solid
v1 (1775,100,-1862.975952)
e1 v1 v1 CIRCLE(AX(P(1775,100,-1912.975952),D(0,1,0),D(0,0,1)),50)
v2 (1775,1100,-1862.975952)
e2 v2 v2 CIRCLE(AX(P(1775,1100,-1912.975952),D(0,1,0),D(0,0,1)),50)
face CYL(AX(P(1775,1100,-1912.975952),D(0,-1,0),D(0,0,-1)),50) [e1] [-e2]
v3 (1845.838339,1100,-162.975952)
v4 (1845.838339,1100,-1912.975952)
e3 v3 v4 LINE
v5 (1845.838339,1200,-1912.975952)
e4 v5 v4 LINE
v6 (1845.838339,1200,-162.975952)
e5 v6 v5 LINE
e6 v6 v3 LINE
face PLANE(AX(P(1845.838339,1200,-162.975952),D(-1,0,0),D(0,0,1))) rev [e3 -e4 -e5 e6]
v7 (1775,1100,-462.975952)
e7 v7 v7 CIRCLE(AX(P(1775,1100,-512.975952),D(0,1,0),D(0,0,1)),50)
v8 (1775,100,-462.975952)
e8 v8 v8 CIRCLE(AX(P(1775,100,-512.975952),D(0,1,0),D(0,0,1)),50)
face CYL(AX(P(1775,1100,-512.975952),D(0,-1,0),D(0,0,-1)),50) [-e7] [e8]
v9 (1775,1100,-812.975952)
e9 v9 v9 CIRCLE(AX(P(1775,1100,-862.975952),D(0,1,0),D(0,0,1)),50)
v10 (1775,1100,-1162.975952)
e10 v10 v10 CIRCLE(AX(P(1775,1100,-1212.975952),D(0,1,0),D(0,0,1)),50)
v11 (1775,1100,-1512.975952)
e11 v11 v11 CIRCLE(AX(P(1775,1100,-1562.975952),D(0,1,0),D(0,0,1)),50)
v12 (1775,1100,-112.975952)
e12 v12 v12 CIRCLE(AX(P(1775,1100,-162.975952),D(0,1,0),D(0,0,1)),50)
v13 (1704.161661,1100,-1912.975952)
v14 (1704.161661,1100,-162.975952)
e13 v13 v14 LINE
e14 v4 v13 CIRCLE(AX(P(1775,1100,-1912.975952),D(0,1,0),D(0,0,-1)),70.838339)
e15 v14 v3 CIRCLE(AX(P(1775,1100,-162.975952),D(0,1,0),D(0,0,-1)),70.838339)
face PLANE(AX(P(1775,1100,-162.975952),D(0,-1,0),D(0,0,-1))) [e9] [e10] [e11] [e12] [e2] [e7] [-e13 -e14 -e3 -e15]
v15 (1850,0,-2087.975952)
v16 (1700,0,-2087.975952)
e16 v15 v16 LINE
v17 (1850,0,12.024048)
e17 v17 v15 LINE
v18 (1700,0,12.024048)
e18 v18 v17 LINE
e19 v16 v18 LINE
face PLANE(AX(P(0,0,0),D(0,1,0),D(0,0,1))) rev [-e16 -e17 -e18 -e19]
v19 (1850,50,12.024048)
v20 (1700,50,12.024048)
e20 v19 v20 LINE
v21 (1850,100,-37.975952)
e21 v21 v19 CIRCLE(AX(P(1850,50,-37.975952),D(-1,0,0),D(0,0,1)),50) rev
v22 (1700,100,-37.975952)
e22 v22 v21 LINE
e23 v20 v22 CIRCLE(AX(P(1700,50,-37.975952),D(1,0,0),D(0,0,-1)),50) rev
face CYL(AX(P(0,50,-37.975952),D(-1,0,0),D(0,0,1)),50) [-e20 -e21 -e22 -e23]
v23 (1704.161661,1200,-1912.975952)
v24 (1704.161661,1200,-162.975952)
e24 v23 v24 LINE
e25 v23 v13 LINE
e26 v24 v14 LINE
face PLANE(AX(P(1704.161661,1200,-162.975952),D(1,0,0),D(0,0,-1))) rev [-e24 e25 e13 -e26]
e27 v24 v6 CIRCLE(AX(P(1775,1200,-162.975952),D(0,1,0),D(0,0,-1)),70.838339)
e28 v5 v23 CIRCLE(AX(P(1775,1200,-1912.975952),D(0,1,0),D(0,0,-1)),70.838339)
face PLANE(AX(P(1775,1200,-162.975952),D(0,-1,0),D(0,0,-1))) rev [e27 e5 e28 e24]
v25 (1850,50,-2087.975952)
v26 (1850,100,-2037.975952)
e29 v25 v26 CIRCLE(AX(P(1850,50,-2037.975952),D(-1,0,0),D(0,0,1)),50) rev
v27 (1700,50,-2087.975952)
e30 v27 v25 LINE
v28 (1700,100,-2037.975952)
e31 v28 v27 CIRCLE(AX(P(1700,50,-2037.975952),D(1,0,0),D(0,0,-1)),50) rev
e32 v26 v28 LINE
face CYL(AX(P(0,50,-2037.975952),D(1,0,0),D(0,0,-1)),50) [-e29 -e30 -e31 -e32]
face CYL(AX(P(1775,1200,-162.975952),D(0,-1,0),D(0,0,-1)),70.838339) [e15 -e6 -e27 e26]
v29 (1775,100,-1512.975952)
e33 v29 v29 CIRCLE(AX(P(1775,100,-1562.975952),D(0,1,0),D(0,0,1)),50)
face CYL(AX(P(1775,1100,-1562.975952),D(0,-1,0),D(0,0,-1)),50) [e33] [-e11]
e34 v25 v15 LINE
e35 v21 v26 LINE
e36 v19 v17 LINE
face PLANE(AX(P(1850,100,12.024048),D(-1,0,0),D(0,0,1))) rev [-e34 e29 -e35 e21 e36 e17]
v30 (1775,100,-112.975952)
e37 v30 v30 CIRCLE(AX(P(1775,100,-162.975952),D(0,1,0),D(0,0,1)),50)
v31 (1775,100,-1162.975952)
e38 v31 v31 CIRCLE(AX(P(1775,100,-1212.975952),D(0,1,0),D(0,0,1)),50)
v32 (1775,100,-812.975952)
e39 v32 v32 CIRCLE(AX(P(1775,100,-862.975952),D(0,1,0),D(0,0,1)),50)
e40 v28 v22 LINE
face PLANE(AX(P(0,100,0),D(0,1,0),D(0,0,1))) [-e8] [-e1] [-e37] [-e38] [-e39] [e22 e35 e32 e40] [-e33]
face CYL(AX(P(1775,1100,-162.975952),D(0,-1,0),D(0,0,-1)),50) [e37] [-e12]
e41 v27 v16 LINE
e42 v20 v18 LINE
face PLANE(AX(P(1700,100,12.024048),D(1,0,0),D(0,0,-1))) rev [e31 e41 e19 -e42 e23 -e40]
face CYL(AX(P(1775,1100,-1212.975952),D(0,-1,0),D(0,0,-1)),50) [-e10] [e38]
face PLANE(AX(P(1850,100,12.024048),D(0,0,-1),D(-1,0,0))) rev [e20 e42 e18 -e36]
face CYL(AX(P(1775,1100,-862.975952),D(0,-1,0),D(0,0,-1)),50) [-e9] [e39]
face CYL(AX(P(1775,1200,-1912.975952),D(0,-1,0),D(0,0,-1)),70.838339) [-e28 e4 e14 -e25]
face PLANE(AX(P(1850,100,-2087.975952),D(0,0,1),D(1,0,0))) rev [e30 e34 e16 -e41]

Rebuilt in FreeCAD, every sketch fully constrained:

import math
import FreeCAD as App
import Part
import Sketcher
from FreeCAD import Vector
Q = App.Units.Quantity


def edges_at(feature, points):
    """Names of the edges that pass closest to the given points."""
    edges = feature.Shape.Edges
    near = lambda p: min(range(len(edges)), key=lambda i: edges[i].distToShape(Part.Vertex(*p))[0])
    return sorted({f"Edge{near(p) + 1}" for p in points})

doc = App.newDocument("Part")
body = doc.addObject("PartDesign::Body", "Body")

# Sketch on XZ plane
sketch1 = doc.addObject("Sketcher::SketchObject", "Sketch")
body.addObject(sketch1)
sketch1.AttachmentSupport = (doc.XZ_Plane, [""])
sketch1.MapMode = "FlatFace"
sketch1.addGeometry(Part.LineSegment(Vector(1700, -2088, 0), Vector(1700, 12, 0)), False)
sketch1.addGeometry(Part.LineSegment(Vector(1700, 12, 0), Vector(1850, 12, 0)), False)
sketch1.addGeometry(Part.LineSegment(Vector(1850, 12, 0), Vector(1850, -2088, 0)), False)
sketch1.addGeometry(Part.LineSegment(Vector(1850, -2088, 0), Vector(1700, -2088, 0)), False)
sketch1.addConstraint(Sketcher.Constraint("Coincident", 0, 2, 1, 1))
sketch1.addConstraint(Sketcher.Constraint("Coincident", 1, 2, 2, 1))
sketch1.addConstraint(Sketcher.Constraint("Coincident", 2, 2, 3, 1))
sketch1.addConstraint(Sketcher.Constraint("Coincident", 3, 2, 0, 1))
sketch1.addConstraint(Sketcher.Constraint("Vertical", 0))
sketch1.addConstraint(Sketcher.Constraint("Horizontal", 1))
sketch1.addConstraint(Sketcher.Constraint("Vertical", 2))
sketch1.addConstraint(Sketcher.Constraint("Horizontal", 3))
sketch1.addConstraint(Sketcher.Constraint("DistanceX", 1, 1, 1, 2, Q("150 mm")))
sketch1.addConstraint(Sketcher.Constraint("DistanceY", 0, 1, 0, 2, Q("2100 mm")))
sketch1.addConstraint(Sketcher.Constraint("DistanceX", -1, 1, 0, 2, Q("1700 mm")))
sketch1.addConstraint(Sketcher.Constraint("DistanceY", -1, 1, 0, 2, Q("12.024048 mm")))
pad1 = doc.addObject("PartDesign::Pad", "Pad")
body.addObject(pad1)
pad1.Profile = sketch1
pad1.Length = 100
pad1.Reversed = True

# Sketch on XZ plane
sketch2 = doc.addObject("Sketcher::SketchObject", "Sketch001")
body.addObject(sketch2)
sketch2.AttachmentSupport = (doc.XZ_Plane, [""])
sketch2.MapMode = "FlatFace"
sketch2.AttachmentOffset = App.Placement(Vector(0, 0, -100), App.Rotation())
sketch2.addGeometry(Part.Circle(Vector(1775, -1913, 0), Vector(0, 0, 1), 50), False)
sketch2.addConstraint(Sketcher.Constraint("Diameter", 0, Q("100 mm")))
sketch2.addConstraint(Sketcher.Constraint("DistanceX", -1, 1, 0, 3, Q("1775 mm")))
sketch2.addConstraint(Sketcher.Constraint("DistanceY", 0, 3, -1, 1, Q("1912.975952 mm")))
pad2 = doc.addObject("PartDesign::Pad", "Pad001")
body.addObject(pad2)
pad2.Profile = sketch2
pad2.Length = 1000
pad2.Reversed = True
doc.recompute()

linearpattern = doc.addObject("PartDesign::LinearPattern", "LinearPattern")
body.addObject(linearpattern)
linearpattern.Originals = [pad2]
linearpattern.Direction = (doc.Z_Axis, [""])
linearpattern.Mode = "offset"
linearpattern.Offset = 350
linearpattern.Occurrences = 6
body.Tip = linearpattern
doc.recompute()

fillet = doc.addObject("PartDesign::Fillet", "Fillet")
body.addObject(fillet)
fillet.Base = (linearpattern, edges_at(linearpattern, [(1775, 100, 12.024)]))
fillet.Radius = 50
doc.recompute()

fillet2 = doc.addObject("PartDesign::Fillet", "Fillet001")
body.addObject(fillet2)
fillet2.Base = (fillet, edges_at(fillet, [(1775, 100, -2087.976)]))
fillet2.Radius = 50
body2 = doc.addObject("PartDesign::Body", "Body001")

# Sketch on XZ plane
sketch3 = doc.addObject("Sketcher::SketchObject", "Sketch002")
body2.addObject(sketch3)
sketch3.AttachmentSupport = (doc.getObject("XZ_Plane001"), [""])
sketch3.MapMode = "FlatFace"
sketch3.addGeometry(Part.LineSegment(Vector(-1850, -2088, 0), Vector(-1850, 12, 0)), False)
sketch3.addGeometry(Part.LineSegment(Vector(-1850, 12, 0), Vector(-1700, 12, 0)), False)
sketch3.addGeometry(Part.LineSegment(Vector(-1700, 12, 0), Vector(-1700, -2088, 0)), False)
sketch3.addGeometry(Part.LineSegment(Vector(-1700, -2088, 0), Vector(-1850, -2088, 0)), False)
sketch3.addConstraint(Sketcher.Constraint("Coincident", 0, 2, 1, 1))
sketch3.addConstraint(Sketcher.Constraint("Coincident", 1, 2, 2, 1))
sketch3.addConstraint(Sketcher.Constraint("Coincident", 2, 2, 3, 1))
sketch3.addConstraint(Sketcher.Constraint("Coincident", 3, 2, 0, 1))
sketch3.addConstraint(Sketcher.Constraint("Vertical", 0))
sketch3.addConstraint(Sketcher.Constraint("Horizontal", 1))
sketch3.addConstraint(Sketcher.Constraint("Vertical", 2))
sketch3.addConstraint(Sketcher.Constraint("Horizontal", 3))
sketch3.addConstraint(Sketcher.Constraint("DistanceX", 1, 1, 1, 2, Q("150 mm")))
sketch3.addConstraint(Sketcher.Constraint("DistanceY", 0, 1, 0, 2, Q("2100 mm")))
sketch3.addConstraint(Sketcher.Constraint("DistanceX", 0, 2, -1, 1, Q("1850 mm")))
sketch3.addConstraint(Sketcher.Constraint("DistanceY", -1, 1, 0, 2, Q("12.024048 mm")))
pad3 = doc.addObject("PartDesign::Pad", "Pad002")
body2.addObject(pad3)
pad3.Profile = sketch3
pad3.Length = 100
pad3.Reversed = True

# Sketch on XZ plane
sketch4 = doc.addObject("Sketcher::SketchObject", "Sketch003")
body2.addObject(sketch4)
sketch4.AttachmentSupport = (doc.getObject("XZ_Plane001"), [""])
sketch4.MapMode = "FlatFace"
sketch4.AttachmentOffset = App.Placement(Vector(0, 0, -100), App.Rotation())
sketch4.addGeometry(Part.Circle(Vector(-1775, -163, 0), Vector(0, 0, 1), 50), False)
sketch4.addConstraint(Sketcher.Constraint("Diameter", 0, Q("100 mm")))
sketch4.addConstraint(Sketcher.Constraint("DistanceX", 0, 3, -1, 1, Q("1775 mm")))
sketch4.addConstraint(Sketcher.Constraint("DistanceY", 0, 3, -1, 1, Q("162.975952 mm")))
pad4 = doc.addObject("PartDesign::Pad", "Pad003")
body2.addObject(pad4)
pad4.Profile = sketch4
pad4.Length = 1000
pad4.Reversed = True
doc.recompute()

linearpattern2 = doc.addObject("PartDesign::LinearPattern", "LinearPattern001")
body2.addObject(linearpattern2)
linearpattern2.Originals = [pad4]
linearpattern2.Direction = (doc.getObject("Z_Axis001"), [""])
linearpattern2.Mode = "offset"
linearpattern2.Offset = 350
linearpattern2.Occurrences = 6
linearpattern2.Reversed = True
body2.Tip = linearpattern2
doc.recompute()

fillet3 = doc.addObject("PartDesign::Fillet", "Fillet002")
body2.addObject(fillet3)
fillet3.Base = (linearpattern2, edges_at(linearpattern2, [(-1775, 100, -2087.976)]))
fillet3.Radius = 50
doc.recompute()

fillet4 = doc.addObject("PartDesign::Fillet", "Fillet003")
body2.addObject(fillet4)
fillet4.Base = (fillet3, edges_at(fillet3, [(-1775, 100, 12.024)]))
fillet4.Radius = 50
body.AllowCompound = True
doc.recompute()

boolean = doc.addObject("PartDesign::Boolean", "Boolean")
body.addObject(boolean)
boolean.Type = "Fuse"
boolean.addObjects([body2])

# Sketch on XZ plane
sketch5 = doc.addObject("Sketcher::SketchObject", "Sketch004")
body.addObject(sketch5)
sketch5.AttachmentSupport = (doc.XZ_Plane, [""])
sketch5.MapMode = "FlatFace"
sketch5.AttachmentOffset = App.Placement(Vector(0, 0, -1100), App.Rotation())
sketch5.addGeometry(Part.LineSegment(Vector(-1846, -1913, 0), Vector(-1846, -163, 0)), False)
sketch5.addGeometry(Part.ArcOfCircle(Part.Circle(Vector(-1775, -163, 0), Vector(0, 0, 1), 71), math.radians(0), math.radians(180)), False)
sketch5.addGeometry(Part.LineSegment(Vector(-1704, -163, 0), Vector(-1704, -1913, 0)), False)
sketch5.addGeometry(Part.ArcOfCircle(Part.Circle(Vector(-1775, -1913, 0), Vector(0, 0, 1), 71), math.radians(180), math.radians(360)), False)
sketch5.addGeometry(Part.LineSegment(Vector(1846, -163, 0), Vector(1846, -1913, 0)), False)
sketch5.addGeometry(Part.ArcOfCircle(Part.Circle(Vector(1775, -1913, 0), Vector(0, 0, 1), 71), math.radians(180), math.radians(360)), False)
sketch5.addGeometry(Part.LineSegment(Vector(1704, -1913, 0), Vector(1704, -163, 0)), False)
sketch5.addGeometry(Part.ArcOfCircle(Part.Circle(Vector(1775, -163, 0), Vector(0, 0, 1), 71), math.radians(0), math.radians(180)), False)
sketch5.addConstraint(Sketcher.Constraint("Tangent", 0, 2, 1, 2))
sketch5.addConstraint(Sketcher.Constraint("Tangent", 1, 1, 2, 1))
sketch5.addConstraint(Sketcher.Constraint("Tangent", 2, 2, 3, 2))
sketch5.addConstraint(Sketcher.Constraint("Tangent", 3, 1, 0, 1))
sketch5.addConstraint(Sketcher.Constraint("Tangent", 4, 2, 5, 2))
sketch5.addConstraint(Sketcher.Constraint("Tangent", 5, 1, 6, 1))
sketch5.addConstraint(Sketcher.Constraint("Tangent", 6, 2, 7, 2))
sketch5.addConstraint(Sketcher.Constraint("Tangent", 7, 1, 4, 1))
sketch5.addConstraint(Sketcher.Constraint("Vertical", 0))
sketch5.addConstraint(Sketcher.Constraint("Vertical", 2))
sketch5.addConstraint(Sketcher.Constraint("Vertical", 4))
sketch5.addConstraint(Sketcher.Constraint("Vertical", 6))
sketch5.addConstraint(Sketcher.Constraint("Equal", 3, 5))
sketch5.addConstraint(Sketcher.Constraint("Symmetric", 3, 3, 5, 3, -2))
sketch5.addConstraint(Sketcher.Constraint("Horizontal", 1, 3, 7, 3))
sketch5.addConstraint(Sketcher.Constraint("DistanceY", 0, 1, 0, 2, Q("1750 mm")))
sketch5.addConstraint(Sketcher.Constraint("DistanceX", 1, 3, -1, 1, Q("1775 mm")))
sketch5.addConstraint(Sketcher.Constraint("Radius", 1, Q("70.838339 mm")))
sketch5.addConstraint(Sketcher.Constraint("DistanceY", 1, 3, -1, 1, Q("162.975952 mm")))
pad5 = doc.addObject("PartDesign::Pad", "Pad004")
body.addObject(pad5)
pad5.Profile = sketch5
pad5.Length = 100
pad5.Reversed = True

# Sketch on XZ plane
sketch6 = doc.addObject("Sketcher::SketchObject", "Sketch005")
body.addObject(sketch6)
sketch6.AttachmentSupport = (doc.XZ_Plane, [""])
sketch6.MapMode = "FlatFace"
sketch6.AttachmentOffset = App.Placement(Vector(0, 0, -1100), App.Rotation())
sketch6.addGeometry(Part.LineSegment(Vector(-1899, -2187, 0), Vector(-1899, 316, 0)), False)
sketch6.addGeometry(Part.LineSegment(Vector(-1899, 316, 0), Vector(-1094, 316, 0)), False)
sketch6.addGeometry(Part.LineSegment(Vector(-1094, 316, 0), Vector(-1094, -2187, 0)), False)
sketch6.addGeometry(Part.LineSegment(Vector(-1094, -2187, 0), Vector(-1899, -2187, 0)), False)
sketch6.addConstraint(Sketcher.Constraint("Coincident", 0, 2, 1, 1))
sketch6.addConstraint(Sketcher.Constraint("Coincident", 1, 2, 2, 1))
sketch6.addConstraint(Sketcher.Constraint("Coincident", 2, 2, 3, 1))
sketch6.addConstraint(Sketcher.Constraint("Coincident", 3, 2, 0, 1))
sketch6.addConstraint(Sketcher.Constraint("Vertical", 0))
sketch6.addConstraint(Sketcher.Constraint("Horizontal", 1))
sketch6.addConstraint(Sketcher.Constraint("Vertical", 2))
sketch6.addConstraint(Sketcher.Constraint("Horizontal", 3))
sketch6.addConstraint(Sketcher.Constraint("DistanceX", 1, 1, 1, 2, Q("805.257542 mm")))
sketch6.addConstraint(Sketcher.Constraint("DistanceY", 0, 1, 0, 2, Q("2502.966117 mm")))
sketch6.addConstraint(Sketcher.Constraint("DistanceY", 2, 2, -1, 1, Q("2186.878432 mm")))
sketch6.addConstraint(Sketcher.Constraint("DistanceX", 0, 2, -1, 1, Q("1899.152647 mm")))
pocket1 = doc.addObject("PartDesign::Pocket", "Pocket")
body.addObject(pocket1)
pocket1.Profile = sketch6
pocket1.Type = "ThroughAll"
pocket1.Midplane = True

doc.recompute()
